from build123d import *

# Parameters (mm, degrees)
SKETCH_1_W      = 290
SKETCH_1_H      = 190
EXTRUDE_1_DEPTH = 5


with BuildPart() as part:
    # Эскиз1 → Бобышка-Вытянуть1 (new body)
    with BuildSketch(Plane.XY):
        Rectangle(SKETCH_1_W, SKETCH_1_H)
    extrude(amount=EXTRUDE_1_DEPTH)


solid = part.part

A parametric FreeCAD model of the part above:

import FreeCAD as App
import Part
import Sketcher

V = App.Vector

doc = App.newDocument("Part")
body = doc.addObject("PartDesign::Body", "Body")

sketch1 = doc.addObject("Sketcher::SketchObject", "Sketch")
body.addObject(sketch1)
sketch1.AttachmentSupport = (doc.XY_Plane, [""])
sketch1.MapMode = "FlatFace"
sketch1.addGeometry(Part.LineSegment(V(-145, 95, 0), V(-145, -95, 0)), False)
sketch1.addGeometry(Part.LineSegment(V(-145, -95, 0), V(145, -95, 0)), False)
sketch1.addGeometry(Part.LineSegment(V(145, -95, 0), V(145, 95, 0)), False)
sketch1.addGeometry(Part.LineSegment(V(145, 95, 0), V(-145, 95, 0)), False)
sketch1.addConstraint(Sketcher.Constraint("Coincident", 0, 2, 1, 1))
sketch1.addConstraint(Sketcher.Constraint("Coincident", 1, 2, 2, 1))
sketch1.addConstraint(Sketcher.Constraint("Coincident", 2, 2, 3, 1))
sketch1.addConstraint(Sketcher.Constraint("Coincident", 3, 2, 0, 1))
sketch1.addConstraint(Sketcher.Constraint("Vertical", 0))
sketch1.addConstraint(Sketcher.Constraint("Horizontal", 1))
sketch1.addConstraint(Sketcher.Constraint("Vertical", 2))
sketch1.addConstraint(Sketcher.Constraint("Horizontal", 3))
sketch1.addConstraint(Sketcher.Constraint("Symmetric", 0, 2, 2, 2, -1, 1))
sketch1.addConstraint(Sketcher.Constraint("DistanceX", 1, 1, 1, 2, 290.0))
sketch1.addConstraint(Sketcher.Constraint("DistanceY", 0, 2, 0, 1, 190.0))
pad1 = doc.addObject("PartDesign::Pad", "Pad")
body.addObject(pad1)
pad1.Profile = sketch1
pad1.Length = 5

doc.recompute()
